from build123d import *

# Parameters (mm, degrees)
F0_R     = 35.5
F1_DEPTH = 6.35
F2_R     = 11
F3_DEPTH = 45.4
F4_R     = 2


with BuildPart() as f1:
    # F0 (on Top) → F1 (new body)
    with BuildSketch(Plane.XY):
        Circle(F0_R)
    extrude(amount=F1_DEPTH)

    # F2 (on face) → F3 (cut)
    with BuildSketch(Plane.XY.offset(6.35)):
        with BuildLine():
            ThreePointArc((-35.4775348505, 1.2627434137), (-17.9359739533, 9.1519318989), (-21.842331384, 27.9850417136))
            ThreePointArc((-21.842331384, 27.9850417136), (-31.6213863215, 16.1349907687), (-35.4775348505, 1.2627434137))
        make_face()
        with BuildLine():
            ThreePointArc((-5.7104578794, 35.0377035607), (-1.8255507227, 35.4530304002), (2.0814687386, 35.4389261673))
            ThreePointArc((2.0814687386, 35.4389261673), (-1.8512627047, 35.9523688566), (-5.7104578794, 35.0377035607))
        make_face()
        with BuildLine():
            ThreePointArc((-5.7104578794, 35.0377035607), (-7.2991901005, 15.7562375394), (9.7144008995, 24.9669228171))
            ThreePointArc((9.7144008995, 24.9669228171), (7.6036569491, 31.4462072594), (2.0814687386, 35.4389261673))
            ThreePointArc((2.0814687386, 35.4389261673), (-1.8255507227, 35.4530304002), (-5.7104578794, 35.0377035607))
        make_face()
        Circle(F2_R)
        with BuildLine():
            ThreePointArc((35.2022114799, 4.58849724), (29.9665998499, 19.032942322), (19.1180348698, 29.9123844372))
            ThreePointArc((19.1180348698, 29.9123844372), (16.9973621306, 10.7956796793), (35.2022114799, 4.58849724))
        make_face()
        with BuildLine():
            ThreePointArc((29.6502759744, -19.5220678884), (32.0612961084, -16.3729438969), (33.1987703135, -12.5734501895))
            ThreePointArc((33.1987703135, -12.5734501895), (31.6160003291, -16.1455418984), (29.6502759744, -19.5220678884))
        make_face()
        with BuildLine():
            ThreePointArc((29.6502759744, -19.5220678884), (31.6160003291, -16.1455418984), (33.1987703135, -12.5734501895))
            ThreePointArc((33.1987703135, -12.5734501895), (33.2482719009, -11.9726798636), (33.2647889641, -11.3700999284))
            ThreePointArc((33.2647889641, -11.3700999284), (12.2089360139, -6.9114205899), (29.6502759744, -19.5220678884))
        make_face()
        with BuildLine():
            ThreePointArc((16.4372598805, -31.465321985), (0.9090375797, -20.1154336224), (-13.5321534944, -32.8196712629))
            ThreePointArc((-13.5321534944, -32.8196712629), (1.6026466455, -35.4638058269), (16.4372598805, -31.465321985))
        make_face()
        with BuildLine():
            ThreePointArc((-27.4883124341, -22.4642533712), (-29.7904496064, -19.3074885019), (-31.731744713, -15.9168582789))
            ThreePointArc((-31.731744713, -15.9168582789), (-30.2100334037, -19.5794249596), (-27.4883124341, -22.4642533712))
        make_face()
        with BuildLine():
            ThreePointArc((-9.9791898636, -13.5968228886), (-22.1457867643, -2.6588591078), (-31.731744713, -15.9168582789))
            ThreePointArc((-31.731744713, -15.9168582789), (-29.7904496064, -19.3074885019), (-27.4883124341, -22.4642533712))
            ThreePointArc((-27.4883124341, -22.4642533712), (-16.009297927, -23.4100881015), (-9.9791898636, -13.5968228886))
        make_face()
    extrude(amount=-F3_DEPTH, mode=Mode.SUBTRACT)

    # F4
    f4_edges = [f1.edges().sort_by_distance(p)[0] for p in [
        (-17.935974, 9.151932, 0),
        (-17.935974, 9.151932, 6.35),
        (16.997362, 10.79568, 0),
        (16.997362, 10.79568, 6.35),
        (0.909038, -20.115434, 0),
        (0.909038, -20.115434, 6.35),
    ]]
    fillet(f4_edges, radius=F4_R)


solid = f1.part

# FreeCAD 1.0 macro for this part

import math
import FreeCAD as App
import Part
import Sketcher

V = App.Vector


def edges_at(feature, points):
    """Names of the edges that pass closest to the given points."""
    edges = feature.Shape.Edges
    near = lambda p: min(range(len(edges)), key=lambda i: edges[i].distToShape(Part.Vertex(*p))[0])
    return sorted({f"Edge{near(p) + 1}" for p in points})

doc = App.newDocument("Part")
params = doc.addObject("Spreadsheet::Sheet", "Params")
for row, (alias, value) in enumerate([
    ("sketch1_diameter", "71 mm"),
    ("pad1_length", "6.35 mm"),
    ("sketch2_diameter", "22 mm"),
    ("sketch2_radius", "35.5 mm"),
    ("pocket1_length", "45.4 mm"),
    ("fillet_radius", "2 mm"),
], start=1):
    params.set(f"A{row}", alias)
    params.set(f"B{row}", "=" + value)
    params.setAlias(f"B{row}", alias)

body = doc.addObject("PartDesign::Body", "Body")

# Sketch on XY plane
sketch1 = body.newObject("Sketcher::SketchObject", "Sketch")
sketch1.AttachmentSupport = (doc.getObject("XY_Plane"), [""])
sketch1.MapMode = "FlatFace"
sketch1.addGeometry(Part.Circle(V(0, 0, 0), V(0, 0, 1), 36), False)
sketch1.addConstraint([
    Sketcher.Constraint("Coincident", 0, 3, -1, 1),
    Sketcher.Constraint("Diameter", 0, 71.0),
])
sketch1.setExpression("Constraints[1]", "Params.sketch1_diameter")
pad1 = body.newObject("PartDesign::Pad", "Pad")
pad1.Profile = sketch1
pad1.setExpression("Length", "Params.pad1_length")

# Sketch on XY plane
sketch2 = body.newObject("Sketcher::SketchObject", "Sketch001")
sketch2.AttachmentSupport = (doc.getObject("XY_Plane"), [""])
sketch2.MapMode = "FlatFace"
sketch2.AttachmentOffset = App.Placement(V(0, 0, 6.35), App.Rotation())
sketch2.addGeometry([
    Part.ArcOfCircle(Part.Circle(V(-31.6, 16.1, 0), V(0, 0, 1), 15.4), math.radians(-105), math.radians(50)),  # 0
    Part.ArcOfCircle(Part.Circle(V(0, 0, 0), V(0, 0, 1), 35.5), math.radians(128), math.radians(178)),  # 1
    Part.ArcOfCircle(Part.Circle(V(-1.3, 25, 0), V(0, 0, 1), 11), math.radians(72), math.radians(114)),  # 2
    Part.ArcOfCircle(Part.Circle(V(-1.3, 25, 0), V(0, 0, 1), 11), math.radians(114), math.radians(360)),  # 3
    Part.ArcOfCircle(Part.Circle(V(-1.3, 25, 0), V(0, 0, 1), 11), math.radians(0), math.radians(72)),  # 4
    Part.Circle(V(0, 0, 0), V(0, 0, 1), 11),  # 5
    Part.ArcOfCircle(Part.Circle(V(0, 0, 0), V(0, 0, 1), 35.5), math.radians(7), math.radians(57)),  # 6
    Part.ArcOfCircle(Part.Circle(V(30, 19, 0), V(0, 0, 1), 15.4), math.radians(135), math.radians(290)),  # 7
    Part.ArcOfCircle(Part.Circle(V(22.3, -11.4, 0), V(0, 0, 1), 11), math.radians(-48), math.radians(-6)),  # 8
    Part.ArcOfCircle(Part.Circle(V(22.3, -11.4, 0), V(0, 0, 1), 11), math.radians(-6.28), math.radians(0)),  # 9
    Part.ArcOfCircle(Part.Circle(V(22.3, -11.4, 0), V(0, 0, 1), 11), math.radians(0), math.radians(312)),  # 10
    Part.ArcOfCircle(Part.Circle(V(1.6, -35.5, 0), V(0, 0, 1), 15.4), math.radians(15), math.radians(170)),  # 11
    Part.ArcOfCircle(Part.Circle(V(0, 0, 0), V(0, 0, 1), 35.5), math.radians(-112), math.radians(-62)),  # 12
    Part.ArcOfCircle(Part.Circle(V(-21, -13.6, 0), V(0, 0, 1), 11), math.radians(-168), math.radians(-126)),  # 13
    Part.ArcOfCircle(Part.Circle(V(-21, -13.6, 0), V(0, 0, 1), 11), math.radians(-126), math.radians(0)),  # 14
    Part.ArcOfCircle(Part.Circle(V(-21, -13.6, 0), V(0, 0, 1), 11), math.radians(0), math.radians(192)),  # 15
], False)
sketch2.addConstraint([
    Sketcher.Constraint("Coincident", 0, 1, 1, 2),
    Sketcher.Constraint("Coincident", 1, 1, 0, 2),
    Sketcher.Constraint("Tangent", 2, 2, 3, 1),
    Sketcher.Constraint("Tangent", 3, 2, 4, 1),
    Sketcher.Constraint("Tangent", 4, 2, 2, 1),
    Sketcher.Constraint("Coincident", 6, 1, 7, 2),
    Sketcher.Constraint("Coincident", 7, 1, 6, 2),
    Sketcher.Constraint("Tangent", 8, 2, 9, 1),
    Sketcher.Constraint("Tangent", 9, 2, 10, 1),
    Sketcher.Constraint("Tangent", 10, 2, 8, 1),
    Sketcher.Constraint("Coincident", 11, 1, 12, 2),
    Sketcher.Constraint("Coincident", 12, 1, 11, 2),
    Sketcher.Constraint("Tangent", 13, 2, 14, 1),
    Sketcher.Constraint("Tangent", 14, 2, 15, 1),
    Sketcher.Constraint("Tangent", 15, 2, 13, 1),
    Sketcher.Constraint("Coincident", 1, 3, -1, 1),
    Sketcher.Constraint("Coincident", 5, 3, -1, 1),
    Sketcher.Constraint("Coincident", 6, 3, -1, 1),
    Sketcher.Constraint("Coincident", 12, 3, -1, 1),
    Sketcher.Constraint("Equal", 4, 5),
    Sketcher.Constraint("Equal", 1, 6),
    Sketcher.Constraint("Equal", 0, 7),
    Sketcher.Constraint("Equal", 5, 8),
    Sketcher.Constraint("Equal", 7, 11),
    Sketcher.Constraint("Equal", 6, 12),
    Sketcher.Constraint("Equal", 10, 13),
    Sketcher.Constraint("Horizontal", 4, 3, 3, 2),
    Sketcher.Constraint("Horizontal", 10, 3, 9, 2),
    Sketcher.Constraint("Horizontal", 15, 3, 14, 2),
    Sketcher.Constraint("Diameter", 5, 22.0),
    Sketcher.Constraint("Radius", 1, 35.5),
    Sketcher.Constraint("Radius", 0, 15.364037),
    Sketcher.Constraint("DistanceX", 2, 3, -1, 1, 1.285599),
    Sketcher.Constraint("DistanceX", -1, 1, 7, 3, 29.9666),
    Sketcher.Constraint("DistanceY", 8, 3, -1, 1, 11.3701),
    Sketcher.Constraint("DistanceY", 0, 1, 1, 1, 26.722298),
    Sketcher.Constraint("DistanceX", 12, 1, 11, 3, 15.1348),
    Sketcher.Constraint("DistanceY", 15, 2, 0, 1, 17.179602),
    Sketcher.Constraint("DistanceY", -1, 1, 0, 3, 16.134991),
    Sketcher.Constraint("DistanceX", -1, 1, 8, 3, 22.264789),
    Sketcher.Constraint("DistanceX", 13, 3, -1, 1, 20.97919),
    Sketcher.Constraint("DistanceX", -1, 1, 4, 2, 2.081469),
    Sketcher.Constraint("DistanceX", -1, 1, 6, 1, 35.202211),
    Sketcher.Constraint("DistanceX", -1, 1, 8, 2, 33.19877),
    Sketcher.Constraint("DistanceX", -1, 1, 11, 1, 16.43726),
    Sketcher.Constraint("DistanceY", 7, 3, 3, 3, 5.93398),
    Sketcher.Constraint("DistanceX", 2, 2, 2, 3, 4.424859),
    Sketcher.Constraint("DistanceY", 12, 1, 13, 3, 19.222848),
    Sketcher.Constraint("DistanceY", 13, 2, 13, 3, 8.86743),
    Sketcher.Constraint("DistanceX", -1, 1, 10, 2, 29.650276),
])
sketch2.setExpression("Constraints[29]", "Params.sketch2_diameter")
sketch2.setExpression("Constraints[30]", "Params.sketch2_radius")
pocket1 = body.newObject("PartDesign::Pocket", "Pocket")
pocket1.Profile = sketch2
pocket1.setExpression("Length", "Params.pocket1_length")
doc.recompute()

fillet = body.newObject("PartDesign::Fillet", "Fillet")
fillet.Base = (pocket1, edges_at(pocket1, [
    (-17.936, 9.152, 0),
    (-17.936, 9.152, 6.35),
    (16.997, 10.796, 0),
    (16.997, 10.796, 6.35),
    (0.909, -20.115, 0),
    (0.909, -20.115, 6.35),
]))
fillet.setExpression("Radius", "Params.fillet_radius")

doc.recompute()
